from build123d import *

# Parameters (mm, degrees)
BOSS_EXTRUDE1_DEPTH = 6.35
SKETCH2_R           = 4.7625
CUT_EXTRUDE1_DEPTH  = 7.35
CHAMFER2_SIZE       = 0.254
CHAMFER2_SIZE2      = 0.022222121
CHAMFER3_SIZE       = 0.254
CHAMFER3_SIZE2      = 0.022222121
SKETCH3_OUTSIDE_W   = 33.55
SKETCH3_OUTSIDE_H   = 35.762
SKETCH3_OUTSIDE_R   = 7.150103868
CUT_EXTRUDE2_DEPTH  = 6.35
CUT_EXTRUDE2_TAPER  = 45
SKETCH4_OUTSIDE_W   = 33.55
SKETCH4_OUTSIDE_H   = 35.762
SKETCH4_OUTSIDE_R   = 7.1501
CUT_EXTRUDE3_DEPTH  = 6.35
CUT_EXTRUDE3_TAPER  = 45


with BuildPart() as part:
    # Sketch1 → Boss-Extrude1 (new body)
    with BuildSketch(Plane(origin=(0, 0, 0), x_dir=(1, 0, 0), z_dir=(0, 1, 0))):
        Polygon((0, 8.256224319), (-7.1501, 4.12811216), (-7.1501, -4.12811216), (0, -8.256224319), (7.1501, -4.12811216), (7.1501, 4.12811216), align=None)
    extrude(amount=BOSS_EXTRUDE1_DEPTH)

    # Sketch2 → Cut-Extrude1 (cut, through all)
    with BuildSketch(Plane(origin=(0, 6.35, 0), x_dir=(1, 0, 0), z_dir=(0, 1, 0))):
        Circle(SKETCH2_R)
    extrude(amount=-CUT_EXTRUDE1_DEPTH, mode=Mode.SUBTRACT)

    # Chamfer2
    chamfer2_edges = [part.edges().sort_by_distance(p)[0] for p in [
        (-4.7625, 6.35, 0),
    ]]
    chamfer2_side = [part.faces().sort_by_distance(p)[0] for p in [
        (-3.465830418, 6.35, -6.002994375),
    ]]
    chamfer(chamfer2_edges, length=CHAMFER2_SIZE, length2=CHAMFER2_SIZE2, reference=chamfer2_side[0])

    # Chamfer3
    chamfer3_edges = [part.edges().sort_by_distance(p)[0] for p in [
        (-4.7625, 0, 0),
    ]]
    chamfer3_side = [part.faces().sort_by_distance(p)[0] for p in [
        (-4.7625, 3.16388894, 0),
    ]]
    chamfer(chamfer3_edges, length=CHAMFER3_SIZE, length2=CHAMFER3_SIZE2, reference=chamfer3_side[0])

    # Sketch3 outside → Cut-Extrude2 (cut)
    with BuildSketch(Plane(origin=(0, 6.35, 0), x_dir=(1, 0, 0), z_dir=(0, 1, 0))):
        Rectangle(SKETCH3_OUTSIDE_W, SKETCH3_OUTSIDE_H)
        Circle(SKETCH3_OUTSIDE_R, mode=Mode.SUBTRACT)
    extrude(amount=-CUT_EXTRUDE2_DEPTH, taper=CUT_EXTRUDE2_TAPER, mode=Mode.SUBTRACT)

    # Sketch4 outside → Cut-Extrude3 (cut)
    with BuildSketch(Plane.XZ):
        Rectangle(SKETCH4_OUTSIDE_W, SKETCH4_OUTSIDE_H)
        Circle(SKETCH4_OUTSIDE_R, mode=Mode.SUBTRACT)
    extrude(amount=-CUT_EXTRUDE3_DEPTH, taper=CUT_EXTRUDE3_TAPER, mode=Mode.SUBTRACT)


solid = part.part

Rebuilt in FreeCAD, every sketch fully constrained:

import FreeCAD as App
import Part
import Sketcher
from FreeCAD import Vector
Q = App.Units.Quantity


def edges_at(feature, points):
    """Names of the edges that pass closest to the given points."""
    edges = feature.Shape.Edges
    near = lambda p: min(range(len(edges)), key=lambda i: edges[i].distToShape(Part.Vertex(*p))[0])
    return sorted({f"Edge{near(p) + 1}" for p in points})


def add_polygon(sketch, points):
    """Adds a closed chain of lines whose ends are joined by coincident constraints."""
    first, n = sketch.GeometryCount, len(points)
    for a, b in zip(points, points[1:] + points[:1]):
        sketch.addGeometry(Part.LineSegment(App.Vector(*a, 0), App.Vector(*b, 0)), False)
    for i in range(n):
        sketch.addConstraint(Sketcher.Constraint("Coincident", first + i, 2, first + (i + 1) % n, 1))

doc = App.newDocument("Part")
body = doc.addObject("PartDesign::Body", "Body")

# Sketch on XZ plane
sketch1 = doc.addObject("Sketcher::SketchObject", "Sketch")
body.addObject(sketch1)
sketch1.AttachmentSupport = (doc.XZ_Plane, [""])
sketch1.MapMode = "FlatFace"
add_polygon(sketch1, [(0, -8), (-7, -4), (-7, 4), (0, 8), (7, 4), (7, -4)])  # lines 0-5
sketch1.addConstraint([
    Sketcher.Constraint("Vertical", 1),
    Sketcher.Constraint("Vertical", 4),
    Sketcher.Constraint("Symmetric", 0, 2, 3, 2, -1, 1),
    Sketcher.Constraint("Symmetric", 2, 2, 5, 2, -1, 1),
    Sketcher.Constraint("PointOnObject", 2, 2, -2),
    Sketcher.Constraint("Parallel", 2, 5),
    Sketcher.Constraint("Horizontal", 1, 2, 3, 2),
    Sketcher.Constraint("Angle", 0, Q("150 deg")),
    Sketcher.Constraint("DistanceX", 1, 2, 3, 2, Q("0.563 in")),
    Sketcher.Constraint("DistanceY", 1, 1, 1, 2, Q("8.256224 mm")),
])
pad1 = doc.addObject("PartDesign::Pad", "Pad")
body.addObject(pad1)
pad1.Profile = sketch1
pad1.Length = Q("0.25 in")
pad1.Reversed = True

# Sketch on XZ plane
sketch2 = doc.addObject("Sketcher::SketchObject", "Sketch001")
body.addObject(sketch2)
sketch2.AttachmentSupport = (doc.XZ_Plane, [""])
sketch2.MapMode = "FlatFace"
sketch2.AttachmentOffset = App.Placement(Vector(0, 0, -0.25 * 25.4), App.Rotation())
sketch2.addGeometry(Part.Circle(Vector(0, 0, 0), Vector(0, 0, 1), 4.8), False)
sketch2.addConstraint([
    Sketcher.Constraint("Coincident", 0, 3, -1, 1),
    Sketcher.Constraint("Diameter", 0, Q("0.375 in")),
])
pocket1 = doc.addObject("PartDesign::Pocket", "Pocket")
body.addObject(pocket1)
pocket1.Profile = sketch2
pocket1.Type = "ThroughAll"
pocket1.Reversed = True
doc.recompute()

chamfer = doc.addObject("PartDesign::Chamfer", "Chamfer")
body.addObject(chamfer)
chamfer.Base = (pocket1, edges_at(pocket1, [(-4.763, 6.35, 0)]))
chamfer.ChamferType = "Two distances"
chamfer.Size = Q("0.01 in")
chamfer.Size2 = 0.022222
doc.recompute()

chamfer2 = doc.addObject("PartDesign::Chamfer", "Chamfer001")
body.addObject(chamfer2)
chamfer2.Base = (chamfer, edges_at(chamfer, [(-4.763, 0, 0)]))
chamfer2.ChamferType = "Two distances"
chamfer2.Size = Q("0.01 in")
chamfer2.Size2 = 0.022222

# Sketch on XZ plane
sketch3 = doc.addObject("Sketcher::SketchObject", "Sketch002")
body.addObject(sketch3)
sketch3.AttachmentSupport = (doc.XZ_Plane, [""])
sketch3.MapMode = "FlatFace"
sketch3.AttachmentOffset = App.Placement(Vector(0, 0, -0.25 * 25.4), App.Rotation())
add_polygon(sketch3, [(-17, -18), (-17, 18), (17, 18), (17, -18)])  # lines 0-3
sketch3.addGeometry(Part.Circle(Vector(0, 0, 0), Vector(0, 0, 1), 7), False)  # 4
sketch3.addConstraint([
    Sketcher.Constraint("Vertical", 0),
    Sketcher.Constraint("Horizontal", 1),
    Sketcher.Constraint("Vertical", 2),
    Sketcher.Constraint("Horizontal", 3),
    Sketcher.Constraint("Coincident", 4, 3, -1, 1),
    Sketcher.Constraint("Symmetric", 0, 2, 2, 2, -1, 1),
    Sketcher.Constraint("Diameter", 4, Q("14.300208 mm")),
    Sketcher.Constraint("DistanceX", 1, 1, 1, 2, Q("33.55 mm")),
    Sketcher.Constraint("DistanceY", 0, 1, 0, 2, Q("35.762 mm")),
])
pocket2 = doc.addObject("PartDesign::Pocket", "Pocket001")
body.addObject(pocket2)
pocket2.Profile = sketch3
pocket2.Length = Q("0.25 in")
pocket2.Reversed = True
pocket2.TaperAngle = 45

# Sketch on XZ plane
sketch4 = doc.addObject("Sketcher::SketchObject", "Sketch003")
body.addObject(sketch4)
sketch4.AttachmentSupport = (doc.XZ_Plane, [""])
sketch4.MapMode = "FlatFace"
add_polygon(sketch4, [(-17, 18), (-17, -18), (17, -18), (17, 18)])  # lines 0-3
sketch4.addGeometry(Part.Circle(Vector(0, 0, 0), Vector(0, 0, 1), 7), False)  # 4
sketch4.addConstraint([
    Sketcher.Constraint("Vertical", 0),
    Sketcher.Constraint("Horizontal", 1),
    Sketcher.Constraint("Vertical", 2),
    Sketcher.Constraint("Horizontal", 3),
    Sketcher.Constraint("Coincident", 4, 3, -1, 1),
    Sketcher.Constraint("Symmetric", 0, 2, 2, 2, -1, 1),
    Sketcher.Constraint("Diameter", 4, Q("0.563 in")),
    Sketcher.Constraint("DistanceX", 1, 1, 1, 2, Q("33.55 mm")),
    Sketcher.Constraint("DistanceY", 0, 2, 0, 1, Q("35.762 mm")),
])
pocket3 = doc.addObject("PartDesign::Pocket", "Pocket002")
body.addObject(pocket3)
pocket3.Profile = sketch4
pocket3.Length = Q("0.25 in")
pocket3.TaperAngle = 45

doc.recompute()
